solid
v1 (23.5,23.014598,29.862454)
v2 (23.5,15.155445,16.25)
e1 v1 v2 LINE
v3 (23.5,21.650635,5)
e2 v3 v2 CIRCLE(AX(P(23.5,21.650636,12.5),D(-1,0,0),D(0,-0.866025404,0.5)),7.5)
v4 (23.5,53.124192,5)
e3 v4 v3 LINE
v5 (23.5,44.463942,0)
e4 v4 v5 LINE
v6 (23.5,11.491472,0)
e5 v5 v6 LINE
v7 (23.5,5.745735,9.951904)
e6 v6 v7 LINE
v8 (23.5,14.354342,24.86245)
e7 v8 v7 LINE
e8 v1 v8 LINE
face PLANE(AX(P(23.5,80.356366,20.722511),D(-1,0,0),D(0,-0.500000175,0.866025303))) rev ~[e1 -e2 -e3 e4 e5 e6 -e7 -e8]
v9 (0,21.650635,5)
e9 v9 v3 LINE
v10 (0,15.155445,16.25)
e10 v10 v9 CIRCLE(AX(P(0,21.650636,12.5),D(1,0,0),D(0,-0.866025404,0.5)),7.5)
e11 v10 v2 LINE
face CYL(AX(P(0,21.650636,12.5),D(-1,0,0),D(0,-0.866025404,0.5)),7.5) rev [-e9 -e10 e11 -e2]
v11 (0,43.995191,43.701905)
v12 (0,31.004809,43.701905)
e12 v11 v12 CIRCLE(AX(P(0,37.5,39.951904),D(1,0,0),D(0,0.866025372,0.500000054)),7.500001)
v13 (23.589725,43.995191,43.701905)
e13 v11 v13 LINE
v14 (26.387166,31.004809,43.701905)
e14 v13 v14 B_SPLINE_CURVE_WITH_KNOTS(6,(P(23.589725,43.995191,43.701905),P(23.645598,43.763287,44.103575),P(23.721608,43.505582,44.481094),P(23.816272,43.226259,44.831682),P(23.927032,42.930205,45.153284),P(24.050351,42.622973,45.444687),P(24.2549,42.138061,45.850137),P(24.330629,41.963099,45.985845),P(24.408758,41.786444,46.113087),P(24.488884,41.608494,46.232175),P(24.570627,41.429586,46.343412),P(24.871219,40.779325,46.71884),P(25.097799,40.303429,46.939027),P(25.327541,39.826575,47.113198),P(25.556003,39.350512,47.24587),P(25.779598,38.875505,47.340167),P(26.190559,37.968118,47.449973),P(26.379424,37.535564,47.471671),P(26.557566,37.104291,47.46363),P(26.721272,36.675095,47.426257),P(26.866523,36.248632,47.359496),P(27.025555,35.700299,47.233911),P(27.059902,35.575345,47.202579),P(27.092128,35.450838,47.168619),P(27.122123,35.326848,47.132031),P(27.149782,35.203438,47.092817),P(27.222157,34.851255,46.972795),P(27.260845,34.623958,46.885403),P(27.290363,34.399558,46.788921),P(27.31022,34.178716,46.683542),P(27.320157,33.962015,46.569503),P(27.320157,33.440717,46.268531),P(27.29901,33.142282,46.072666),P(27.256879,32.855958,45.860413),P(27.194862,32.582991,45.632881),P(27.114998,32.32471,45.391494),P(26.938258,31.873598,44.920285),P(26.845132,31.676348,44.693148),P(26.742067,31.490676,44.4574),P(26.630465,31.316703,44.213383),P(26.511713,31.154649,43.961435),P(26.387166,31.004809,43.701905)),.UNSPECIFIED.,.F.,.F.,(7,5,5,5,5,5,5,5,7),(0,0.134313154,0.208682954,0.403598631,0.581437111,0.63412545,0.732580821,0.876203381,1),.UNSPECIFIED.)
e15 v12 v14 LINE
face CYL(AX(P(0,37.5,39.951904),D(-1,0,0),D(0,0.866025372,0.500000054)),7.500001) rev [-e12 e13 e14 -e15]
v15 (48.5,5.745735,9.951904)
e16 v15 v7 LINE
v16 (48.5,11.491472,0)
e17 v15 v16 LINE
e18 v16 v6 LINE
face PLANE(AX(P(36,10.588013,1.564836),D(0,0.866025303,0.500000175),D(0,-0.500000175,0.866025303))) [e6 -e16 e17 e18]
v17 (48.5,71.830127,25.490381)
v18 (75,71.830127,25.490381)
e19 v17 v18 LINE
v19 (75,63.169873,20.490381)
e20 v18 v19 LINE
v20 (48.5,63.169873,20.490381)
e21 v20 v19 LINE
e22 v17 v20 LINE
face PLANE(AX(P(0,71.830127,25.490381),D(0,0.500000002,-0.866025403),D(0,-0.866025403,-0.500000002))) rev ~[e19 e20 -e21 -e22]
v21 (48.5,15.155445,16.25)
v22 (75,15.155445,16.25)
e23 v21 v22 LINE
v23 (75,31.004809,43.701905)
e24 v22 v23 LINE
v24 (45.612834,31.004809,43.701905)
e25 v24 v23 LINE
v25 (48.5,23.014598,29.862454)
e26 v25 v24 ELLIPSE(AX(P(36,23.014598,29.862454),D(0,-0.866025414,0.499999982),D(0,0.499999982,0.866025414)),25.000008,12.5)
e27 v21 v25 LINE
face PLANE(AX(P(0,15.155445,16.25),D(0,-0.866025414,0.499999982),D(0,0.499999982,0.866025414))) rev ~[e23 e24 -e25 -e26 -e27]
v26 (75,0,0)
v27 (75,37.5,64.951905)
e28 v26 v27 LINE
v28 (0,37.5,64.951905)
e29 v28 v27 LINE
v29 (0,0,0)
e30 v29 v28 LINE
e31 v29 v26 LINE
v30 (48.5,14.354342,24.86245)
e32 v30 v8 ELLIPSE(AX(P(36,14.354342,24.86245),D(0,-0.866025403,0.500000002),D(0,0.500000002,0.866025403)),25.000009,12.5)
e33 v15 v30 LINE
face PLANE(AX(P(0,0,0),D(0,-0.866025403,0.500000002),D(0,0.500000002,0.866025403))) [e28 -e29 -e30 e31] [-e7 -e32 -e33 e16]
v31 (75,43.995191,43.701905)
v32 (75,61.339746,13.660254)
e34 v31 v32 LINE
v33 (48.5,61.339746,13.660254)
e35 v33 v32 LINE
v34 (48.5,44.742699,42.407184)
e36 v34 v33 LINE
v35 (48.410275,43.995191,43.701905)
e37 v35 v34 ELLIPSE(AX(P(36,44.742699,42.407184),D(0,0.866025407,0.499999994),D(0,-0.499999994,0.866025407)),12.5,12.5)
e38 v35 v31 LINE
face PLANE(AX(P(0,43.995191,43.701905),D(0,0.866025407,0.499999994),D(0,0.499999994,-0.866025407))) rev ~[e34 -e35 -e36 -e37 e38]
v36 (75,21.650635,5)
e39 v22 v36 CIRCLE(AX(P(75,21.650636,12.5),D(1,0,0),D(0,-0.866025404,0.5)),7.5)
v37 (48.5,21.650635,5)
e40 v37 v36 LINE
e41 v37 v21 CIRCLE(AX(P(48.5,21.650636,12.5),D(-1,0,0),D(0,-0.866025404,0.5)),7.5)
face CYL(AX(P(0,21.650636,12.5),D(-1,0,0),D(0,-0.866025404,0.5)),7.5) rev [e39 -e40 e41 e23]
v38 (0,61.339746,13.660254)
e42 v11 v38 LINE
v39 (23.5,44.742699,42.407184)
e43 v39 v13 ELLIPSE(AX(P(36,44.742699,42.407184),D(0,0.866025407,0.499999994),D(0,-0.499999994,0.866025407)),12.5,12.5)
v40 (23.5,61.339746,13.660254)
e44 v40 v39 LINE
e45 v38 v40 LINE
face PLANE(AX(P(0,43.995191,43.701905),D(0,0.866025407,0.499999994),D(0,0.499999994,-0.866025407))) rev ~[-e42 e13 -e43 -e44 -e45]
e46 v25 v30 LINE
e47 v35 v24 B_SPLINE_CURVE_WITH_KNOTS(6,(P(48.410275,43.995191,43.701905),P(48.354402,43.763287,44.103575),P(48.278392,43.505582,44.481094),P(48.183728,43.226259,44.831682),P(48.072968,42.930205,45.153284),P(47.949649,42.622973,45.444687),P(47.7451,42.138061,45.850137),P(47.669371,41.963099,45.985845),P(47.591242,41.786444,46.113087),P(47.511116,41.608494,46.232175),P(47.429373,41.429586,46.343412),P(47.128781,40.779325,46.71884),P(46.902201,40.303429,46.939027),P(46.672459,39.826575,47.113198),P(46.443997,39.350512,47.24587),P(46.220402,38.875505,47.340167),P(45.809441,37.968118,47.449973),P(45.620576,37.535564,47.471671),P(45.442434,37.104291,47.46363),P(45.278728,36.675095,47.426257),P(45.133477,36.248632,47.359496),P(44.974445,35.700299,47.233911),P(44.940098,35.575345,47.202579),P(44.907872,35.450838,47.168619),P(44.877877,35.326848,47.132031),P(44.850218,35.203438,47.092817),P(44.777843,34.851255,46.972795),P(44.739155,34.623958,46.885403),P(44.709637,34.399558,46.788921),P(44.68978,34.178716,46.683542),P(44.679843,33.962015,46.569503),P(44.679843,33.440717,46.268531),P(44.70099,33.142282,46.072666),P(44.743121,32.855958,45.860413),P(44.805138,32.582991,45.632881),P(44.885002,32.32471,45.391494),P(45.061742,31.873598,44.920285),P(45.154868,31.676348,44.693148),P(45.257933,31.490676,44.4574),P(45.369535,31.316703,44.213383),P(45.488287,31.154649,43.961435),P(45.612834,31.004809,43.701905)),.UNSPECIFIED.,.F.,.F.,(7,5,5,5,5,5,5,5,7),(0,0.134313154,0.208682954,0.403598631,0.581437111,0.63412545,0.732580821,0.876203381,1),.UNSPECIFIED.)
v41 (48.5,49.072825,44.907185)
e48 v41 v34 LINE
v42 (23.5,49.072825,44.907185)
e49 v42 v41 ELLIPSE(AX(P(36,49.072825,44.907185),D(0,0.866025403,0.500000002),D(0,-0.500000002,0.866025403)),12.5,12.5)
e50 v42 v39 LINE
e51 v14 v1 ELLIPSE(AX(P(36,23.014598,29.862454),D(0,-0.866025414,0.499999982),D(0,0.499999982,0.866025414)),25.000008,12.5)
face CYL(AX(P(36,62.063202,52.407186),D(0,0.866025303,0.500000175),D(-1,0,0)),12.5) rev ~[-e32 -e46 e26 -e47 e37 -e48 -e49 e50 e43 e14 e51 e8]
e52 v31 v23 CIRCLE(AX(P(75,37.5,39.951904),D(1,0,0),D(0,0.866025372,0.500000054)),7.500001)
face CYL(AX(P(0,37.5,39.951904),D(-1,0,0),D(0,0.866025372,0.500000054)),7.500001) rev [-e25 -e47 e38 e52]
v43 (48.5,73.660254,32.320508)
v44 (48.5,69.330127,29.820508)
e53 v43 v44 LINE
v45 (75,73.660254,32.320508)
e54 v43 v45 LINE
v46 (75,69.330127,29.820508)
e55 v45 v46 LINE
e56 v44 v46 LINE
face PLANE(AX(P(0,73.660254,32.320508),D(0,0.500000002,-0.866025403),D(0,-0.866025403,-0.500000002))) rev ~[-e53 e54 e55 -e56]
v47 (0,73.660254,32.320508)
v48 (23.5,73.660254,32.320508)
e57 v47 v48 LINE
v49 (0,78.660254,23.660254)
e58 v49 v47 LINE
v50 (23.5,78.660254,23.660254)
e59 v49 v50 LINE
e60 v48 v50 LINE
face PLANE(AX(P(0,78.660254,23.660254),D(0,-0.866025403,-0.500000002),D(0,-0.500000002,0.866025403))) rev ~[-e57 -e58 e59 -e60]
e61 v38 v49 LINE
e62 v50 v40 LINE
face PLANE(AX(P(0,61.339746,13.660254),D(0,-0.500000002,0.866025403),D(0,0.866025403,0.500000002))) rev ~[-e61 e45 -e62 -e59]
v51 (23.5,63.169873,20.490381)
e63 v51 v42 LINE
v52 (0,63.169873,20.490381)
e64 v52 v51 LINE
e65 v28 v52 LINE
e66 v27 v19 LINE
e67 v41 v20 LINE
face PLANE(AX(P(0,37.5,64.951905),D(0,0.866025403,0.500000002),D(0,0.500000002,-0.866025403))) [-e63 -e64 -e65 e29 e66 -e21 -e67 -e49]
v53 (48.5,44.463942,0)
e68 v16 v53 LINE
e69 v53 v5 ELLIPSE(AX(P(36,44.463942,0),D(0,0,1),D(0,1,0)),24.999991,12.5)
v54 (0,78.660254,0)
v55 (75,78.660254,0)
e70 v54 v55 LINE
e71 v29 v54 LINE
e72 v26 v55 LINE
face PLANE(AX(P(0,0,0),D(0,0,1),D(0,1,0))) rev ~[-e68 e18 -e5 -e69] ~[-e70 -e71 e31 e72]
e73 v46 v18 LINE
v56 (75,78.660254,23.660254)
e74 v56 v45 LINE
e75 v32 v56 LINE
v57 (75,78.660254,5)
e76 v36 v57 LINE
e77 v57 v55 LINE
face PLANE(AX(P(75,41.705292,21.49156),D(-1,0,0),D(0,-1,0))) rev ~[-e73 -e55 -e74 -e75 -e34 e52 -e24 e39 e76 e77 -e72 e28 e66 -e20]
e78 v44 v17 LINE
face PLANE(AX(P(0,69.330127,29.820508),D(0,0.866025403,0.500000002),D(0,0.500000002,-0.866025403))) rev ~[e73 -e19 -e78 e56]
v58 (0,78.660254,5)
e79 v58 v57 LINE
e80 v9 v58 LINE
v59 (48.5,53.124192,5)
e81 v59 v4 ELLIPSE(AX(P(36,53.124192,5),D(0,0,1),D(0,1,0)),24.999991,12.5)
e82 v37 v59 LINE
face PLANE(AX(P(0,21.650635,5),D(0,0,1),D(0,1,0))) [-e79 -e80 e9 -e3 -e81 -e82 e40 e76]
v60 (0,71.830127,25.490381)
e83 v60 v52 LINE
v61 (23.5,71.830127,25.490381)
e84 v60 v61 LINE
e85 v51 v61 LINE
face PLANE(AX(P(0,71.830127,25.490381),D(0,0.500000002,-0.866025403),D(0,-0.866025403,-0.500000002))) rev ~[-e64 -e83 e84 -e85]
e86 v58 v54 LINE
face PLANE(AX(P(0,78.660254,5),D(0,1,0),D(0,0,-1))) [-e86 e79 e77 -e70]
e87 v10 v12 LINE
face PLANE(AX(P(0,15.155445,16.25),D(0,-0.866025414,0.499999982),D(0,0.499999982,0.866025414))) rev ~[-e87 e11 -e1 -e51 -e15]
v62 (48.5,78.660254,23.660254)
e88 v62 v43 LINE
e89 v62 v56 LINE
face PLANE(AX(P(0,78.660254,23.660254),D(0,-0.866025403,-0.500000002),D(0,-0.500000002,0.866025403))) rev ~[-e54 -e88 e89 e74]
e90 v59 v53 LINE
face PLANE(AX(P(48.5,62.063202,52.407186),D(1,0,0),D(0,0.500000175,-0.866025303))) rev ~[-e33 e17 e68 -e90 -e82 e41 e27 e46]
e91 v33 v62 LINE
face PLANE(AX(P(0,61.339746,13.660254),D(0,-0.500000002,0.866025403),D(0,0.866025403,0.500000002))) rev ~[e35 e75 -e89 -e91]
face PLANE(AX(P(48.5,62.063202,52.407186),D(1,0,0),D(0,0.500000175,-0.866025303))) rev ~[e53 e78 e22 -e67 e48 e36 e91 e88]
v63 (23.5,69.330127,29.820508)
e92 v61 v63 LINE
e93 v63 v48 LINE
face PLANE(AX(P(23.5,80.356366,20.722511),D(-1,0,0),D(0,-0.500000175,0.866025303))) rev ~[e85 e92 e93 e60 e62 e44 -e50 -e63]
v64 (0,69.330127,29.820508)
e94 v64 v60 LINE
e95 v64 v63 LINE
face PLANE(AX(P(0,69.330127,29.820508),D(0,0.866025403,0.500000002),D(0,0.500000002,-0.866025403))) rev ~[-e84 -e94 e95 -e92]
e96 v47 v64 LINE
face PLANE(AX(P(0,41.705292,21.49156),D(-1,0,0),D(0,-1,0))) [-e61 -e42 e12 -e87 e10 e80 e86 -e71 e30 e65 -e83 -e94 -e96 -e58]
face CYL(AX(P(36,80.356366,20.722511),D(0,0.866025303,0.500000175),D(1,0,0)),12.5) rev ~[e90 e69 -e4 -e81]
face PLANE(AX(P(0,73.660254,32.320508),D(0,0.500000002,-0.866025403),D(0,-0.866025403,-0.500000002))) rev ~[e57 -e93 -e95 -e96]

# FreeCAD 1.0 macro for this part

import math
import FreeCAD as App
import Part
import Sketcher
Q = App.Units.Quantity

doc = App.newDocument("Part")
params = doc.addObject("Spreadsheet::Sheet", "Params")
for row, (alias, value) in enumerate([
    ("sketch1_radius", "7.5 mm"),
    ("sketch1_height", "5 mm"),
    ("sketch1_length", "75 mm"),
    ("sketch1_length2", "20 mm"),
    ("sketch1_length3", "10 mm"),
    ("pad1_length", "75 mm"),
    ("sketch2_radius", "12.5 mm"),
    ("pocket1_length", "70 mm"),
], start=1):
    params.set(f"A{row}", alias)
    params.set(f"B{row}", "=" + value)
    params.setAlias(f"B{row}", alias)

body = doc.addObject("PartDesign::Body", "Body")

# Sketch on YZ plane
sketch1 = body.newObject("Sketcher::SketchObject", "Sketch")
sketch1.AttachmentSupport = (doc.getObject("YZ_Plane"), [""])
sketch1.MapMode = "FlatFace"
sketch1.addGeometry(Part.LineSegment(App.Vector(37.5, 64.951905, 0), App.Vector(0, 0, 0)), False)
sketch1.addGeometry(Part.LineSegment(App.Vector(0, 0, 0), App.Vector(78.660254, 0, 0)), False)
sketch1.addGeometry(Part.LineSegment(App.Vector(78.660254, 0, 0), App.Vector(78.660254, 5, 0)), False)
sketch1.addGeometry(Part.LineSegment(App.Vector(78.660254, 5, 0), App.Vector(21.650635, 5, 0)), False)
sketch1.addGeometry(Part.ArcOfCircle(Part.Circle(App.Vector(21.650636, 12.5, 0), App.Vector(0, 0, 1), 7.5), math.radians(150), math.radians(269.999996)), False)
sketch1.addGeometry(Part.LineSegment(App.Vector(15.155445, 16.25, 0), App.Vector(31.004809, 43.701905, 0)), False)
sketch1.addGeometry(Part.ArcOfCircle(Part.Circle(App.Vector(37.5, 39.951904, 0), App.Vector(0, 0, 1), 7.500001), math.radians(30.000004), math.radians(149.999996)), False)
sketch1.addGeometry(Part.LineSegment(App.Vector(43.995191, 43.701905, 0), App.Vector(61.339746, 13.660254, 0)), False)
sketch1.addGeometry(Part.LineSegment(App.Vector(61.339746, 13.660254, 0), App.Vector(78.660254, 23.660254, 0)), False)
sketch1.addGeometry(Part.LineSegment(App.Vector(78.660254, 23.660254, 0), App.Vector(73.660254, 32.320508, 0)), False)
sketch1.addGeometry(Part.LineSegment(App.Vector(73.660254, 32.320508, 0), App.Vector(69.330127, 29.820508, 0)), False)
sketch1.addGeometry(Part.LineSegment(App.Vector(69.330127, 29.820508, 0), App.Vector(71.830127, 25.490381, 0)), False)
sketch1.addGeometry(Part.LineSegment(App.Vector(71.830127, 25.490381, 0), App.Vector(63.169873, 20.490381, 0)), False)
sketch1.addGeometry(Part.LineSegment(App.Vector(63.169873, 20.490381, 0), App.Vector(37.5, 64.951905, 0)), False)
sketch1.addConstraint(Sketcher.Constraint("Coincident", 0, 2, 1, 1))
sketch1.addConstraint(Sketcher.Constraint("Coincident", 1, 2, 2, 1))
sketch1.addConstraint(Sketcher.Constraint("Coincident", 2, 2, 3, 1))
sketch1.addConstraint(Sketcher.Constraint("Tangent", 3, 2, 4, 2))
sketch1.addConstraint(Sketcher.Constraint("Tangent", 4, 1, 5, 1))
sketch1.addConstraint(Sketcher.Constraint("Tangent", 5, 2, 6, 2))
sketch1.addConstraint(Sketcher.Constraint("Tangent", 6, 1, 7, 1))
sketch1.addConstraint(Sketcher.Constraint("Coincident", 7, 2, 8, 1))
sketch1.addConstraint(Sketcher.Constraint("Coincident", 8, 2, 9, 1))
sketch1.addConstraint(Sketcher.Constraint("Coincident", 9, 2, 10, 1))
sketch1.addConstraint(Sketcher.Constraint("Coincident", 10, 2, 11, 1))
sketch1.addConstraint(Sketcher.Constraint("Coincident", 11, 2, 12, 1))
sketch1.addConstraint(Sketcher.Constraint("Coincident", 12, 2, 13, 1))
sketch1.addConstraint(Sketcher.Constraint("Coincident", 13, 2, 0, 1))
sketch1.addConstraint(Sketcher.Constraint("Horizontal", 1))
sketch1.addConstraint(Sketcher.Constraint("Vertical", 2))
sketch1.addConstraint(Sketcher.Constraint("Horizontal", 3))
sketch1.addConstraint(Sketcher.Constraint("Coincident", 0, 2, -1, 1))
sketch1.addConstraint(Sketcher.Constraint("Equal", 4, 6))
sketch1.addConstraint(Sketcher.Constraint("Parallel", 0, 5))
sketch1.addConstraint(Sketcher.Constraint("Perpendicular", 7, 8))
sketch1.addConstraint(Sketcher.Constraint("Perpendicular", 8, 9))
sketch1.addConstraint(Sketcher.Constraint("Perpendicular", 9, 10))
sketch1.addConstraint(Sketcher.Constraint("Perpendicular", 10, 11))
sketch1.addConstraint(Sketcher.Constraint("Perpendicular", 11, 12))
sketch1.addConstraint(Sketcher.Constraint("Perpendicular", 12, 13))
sketch1.addConstraint(Sketcher.Constraint("Horizontal", 5, 2, 6, 1))
sketch1.addConstraint(Sketcher.Constraint("Vertical", 2, 2, 8, 2))
sketch1.addConstraint(Sketcher.Constraint("Vertical", 6, 3, 13, 2))
sketch1.addConstraint(Sketcher.Constraint("Equal", 10, 11))
sketch1.addConstraint(Sketcher.Constraint("Equal", 9, 12))
sketch1.addConstraint(Sketcher.Constraint("Radius", 4, Q("7.5 mm")))
sketch1.addConstraint(Sketcher.Constraint("DistanceY", 2, 1, 2, 2, Q("5 mm")))
sketch1.addConstraint(Sketcher.Constraint("Angle", 0, Q("-120 deg")))
sketch1.addConstraint(Sketcher.Constraint("Distance", 0, Q("75 mm")))
sketch1.addConstraint(Sketcher.Constraint("Distance", 8, Q("20 mm")))
sketch1.addConstraint(Sketcher.Constraint("Distance", 9, Q("10 mm")))
sketch1.addConstraint(Sketcher.Constraint("Distance", 10, Q("5 mm")))
sketch1.addConstraint(Sketcher.Constraint("DistanceX", 3, 2, 3, 1, Q("57.009619 mm")))
sketch1.setExpression("Constraints[31]", "Params.sketch1_radius")
sketch1.setExpression("Constraints[32]", "Params.sketch1_height")
sketch1.setExpression("Constraints[34]", "Params.sketch1_length")
sketch1.setExpression("Constraints[35]", "Params.sketch1_length2")
sketch1.setExpression("Constraints[36]", "Params.sketch1_length3")
pad1 = body.newObject("PartDesign::Pad", "Pad")
pad1.Profile = sketch1
pad1.setExpression("Length", "Params.pad1_length")

# Sketch on an angled plane
sketch2 = body.newObject("Sketcher::SketchObject", "Sketch001")
sketch2.Placement = App.Placement(App.Vector(0, 69.240381, 39.975953), App.Rotation(App.Vector(0, -0.500000175, 0.866025303), App.Vector(1, 0, 0), App.Vector(0, 0.866025303, 0.500000175), "ZXY"))
sketch2.addGeometry(Part.ArcOfCircle(Part.Circle(App.Vector(14.354353, 36, 0), App.Vector(0, 0, 1), 12.5), math.radians(-90), math.radians(90)), False)
sketch2.addGeometry(Part.LineSegment(App.Vector(14.354353, 48.5, 0), App.Vector(-22.231963, 48.5, 0)), False)
sketch2.addGeometry(Part.ArcOfCircle(Part.Circle(App.Vector(-22.231963, 36, 0), App.Vector(0, 0, 1), 12.5), math.radians(90), math.radians(270)), False)
sketch2.addGeometry(Part.LineSegment(App.Vector(-22.231963, 23.5, 0), App.Vector(14.354353, 23.5, 0)), False)
sketch2.addConstraint(Sketcher.Constraint("Tangent", 0, 2, 1, 1))
sketch2.addConstraint(Sketcher.Constraint("Tangent", 1, 2, 2, 1))
sketch2.addConstraint(Sketcher.Constraint("Tangent", 2, 2, 3, 1))
sketch2.addConstraint(Sketcher.Constraint("Tangent", 3, 2, 0, 1))
sketch2.addConstraint(Sketcher.Constraint("Horizontal", 1))
sketch2.addConstraint(Sketcher.Constraint("Horizontal", 3))
sketch2.addConstraint(Sketcher.Constraint("Radius", 0, Q("12.5 mm")))
sketch2.addConstraint(Sketcher.Constraint("DistanceY", -1, 1, 0, 3, Q("36 mm")))
sketch2.addConstraint(Sketcher.Constraint("DistanceX", 1, 2, 1, 1, Q("36.586316 mm")))
sketch2.addConstraint(Sketcher.Constraint("DistanceX", -1, 1, 0, 3, Q("14.354353 mm")))
sketch2.setExpression("Constraints[6]", "Params.sketch2_radius")
pocket1 = body.newObject("PartDesign::Pocket", "Pocket")
pocket1.Profile = sketch2
pocket1.setExpression("Length", "Params.pocket1_length")

doc.recompute()
